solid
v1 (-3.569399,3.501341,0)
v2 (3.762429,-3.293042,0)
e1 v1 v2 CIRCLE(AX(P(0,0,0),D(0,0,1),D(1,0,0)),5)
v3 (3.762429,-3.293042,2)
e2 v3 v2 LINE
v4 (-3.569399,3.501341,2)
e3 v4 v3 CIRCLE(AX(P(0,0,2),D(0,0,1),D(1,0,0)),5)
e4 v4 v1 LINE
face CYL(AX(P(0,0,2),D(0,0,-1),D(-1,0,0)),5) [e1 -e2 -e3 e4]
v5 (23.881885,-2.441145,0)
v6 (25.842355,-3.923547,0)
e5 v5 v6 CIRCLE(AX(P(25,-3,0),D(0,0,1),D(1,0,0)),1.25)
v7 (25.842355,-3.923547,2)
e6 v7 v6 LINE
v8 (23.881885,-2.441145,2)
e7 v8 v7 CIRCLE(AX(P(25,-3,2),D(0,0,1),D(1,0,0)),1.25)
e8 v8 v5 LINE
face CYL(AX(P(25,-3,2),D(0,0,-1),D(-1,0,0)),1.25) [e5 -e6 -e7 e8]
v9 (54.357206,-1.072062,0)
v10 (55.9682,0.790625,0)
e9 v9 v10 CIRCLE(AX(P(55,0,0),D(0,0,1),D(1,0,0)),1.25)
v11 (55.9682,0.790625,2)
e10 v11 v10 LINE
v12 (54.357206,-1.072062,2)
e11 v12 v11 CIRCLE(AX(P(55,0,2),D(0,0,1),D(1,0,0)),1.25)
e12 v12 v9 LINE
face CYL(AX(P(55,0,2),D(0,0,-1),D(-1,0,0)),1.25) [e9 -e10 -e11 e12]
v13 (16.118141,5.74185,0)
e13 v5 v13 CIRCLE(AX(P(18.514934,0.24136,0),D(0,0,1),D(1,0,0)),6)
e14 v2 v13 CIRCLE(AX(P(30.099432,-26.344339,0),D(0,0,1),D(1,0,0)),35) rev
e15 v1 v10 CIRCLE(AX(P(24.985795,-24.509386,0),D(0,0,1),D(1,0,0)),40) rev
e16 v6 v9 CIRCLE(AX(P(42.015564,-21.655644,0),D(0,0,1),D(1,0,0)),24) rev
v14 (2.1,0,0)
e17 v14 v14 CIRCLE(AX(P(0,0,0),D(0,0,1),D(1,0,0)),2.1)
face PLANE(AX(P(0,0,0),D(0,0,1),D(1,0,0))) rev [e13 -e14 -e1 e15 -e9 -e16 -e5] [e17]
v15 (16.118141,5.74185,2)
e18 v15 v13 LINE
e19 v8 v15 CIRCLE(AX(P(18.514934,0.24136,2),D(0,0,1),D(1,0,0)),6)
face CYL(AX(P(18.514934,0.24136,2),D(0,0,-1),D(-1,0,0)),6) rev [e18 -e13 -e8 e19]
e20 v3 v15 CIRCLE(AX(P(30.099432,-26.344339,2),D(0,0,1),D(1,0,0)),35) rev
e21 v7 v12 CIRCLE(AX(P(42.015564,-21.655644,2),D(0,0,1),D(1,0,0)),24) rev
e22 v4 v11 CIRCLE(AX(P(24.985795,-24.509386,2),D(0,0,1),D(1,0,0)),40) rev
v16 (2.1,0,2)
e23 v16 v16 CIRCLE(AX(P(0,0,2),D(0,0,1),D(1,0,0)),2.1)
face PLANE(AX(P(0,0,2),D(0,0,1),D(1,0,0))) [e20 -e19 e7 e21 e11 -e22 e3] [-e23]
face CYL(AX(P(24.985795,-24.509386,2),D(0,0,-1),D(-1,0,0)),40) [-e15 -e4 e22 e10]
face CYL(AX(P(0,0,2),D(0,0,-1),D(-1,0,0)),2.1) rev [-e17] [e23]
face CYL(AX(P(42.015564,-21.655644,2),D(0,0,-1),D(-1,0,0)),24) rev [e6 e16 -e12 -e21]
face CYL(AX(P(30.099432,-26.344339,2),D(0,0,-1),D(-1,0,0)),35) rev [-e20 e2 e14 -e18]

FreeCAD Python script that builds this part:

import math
import FreeCAD as App
import Part
import Sketcher

V = App.Vector
Q = App.Units.Quantity

doc = App.newDocument("Part")
body = doc.addObject("PartDesign::Body", "Body")

# Sketch on XY plane
sketch1 = body.newObject("Sketcher::SketchObject", "Sketch")
sketch1.AttachmentSupport = (doc.getObject("XY_Plane"), [""])
sketch1.MapMode = "FlatFace"
sketch1.addGeometry(Part.ArcOfCircle(Part.Circle(V(25, -3, 0), V(0, 0, 1), 1.2), math.radians(153), math.radians(312)), False)
sketch1.addGeometry(Part.ArcOfCircle(Part.Circle(V(42, -21.7, 0), V(0, 0, 1), 24), math.radians(59), math.radians(132)), False)
sketch1.addGeometry(Part.ArcOfCircle(Part.Circle(V(55, 0, 0), V(0, 0, 1), 1.2), math.radians(-121), math.radians(39)), False)
sketch1.addGeometry(Part.ArcOfCircle(Part.Circle(V(25, -24.5, 0), V(0, 0, 1), 40), math.radians(39), math.radians(136)), False)
sketch1.addGeometry(Part.ArcOfCircle(Part.Circle(V(0, 0, 0), V(0, 0, 1), 5), math.radians(136), math.radians(319)), False)
sketch1.addGeometry(Part.ArcOfCircle(Part.Circle(V(30.1, -26.3, 0), V(0, 0, 1), 35), math.radians(114), math.radians(139)), False)
sketch1.addGeometry(Part.ArcOfCircle(Part.Circle(V(18.5, 0.2, 0), V(0, 0, 1), 6), math.radians(-27), math.radians(114)), False)
sketch1.addGeometry(Part.Circle(V(0, 0, 0), V(0, 0, 1), 2.1), False)
sketch1.addConstraint(Sketcher.Constraint("Tangent", 0, 2, 1, 2))
sketch1.addConstraint(Sketcher.Constraint("Tangent", 1, 1, 2, 1))
sketch1.addConstraint(Sketcher.Constraint("Tangent", 2, 2, 3, 1))
sketch1.addConstraint(Sketcher.Constraint("Tangent", 3, 2, 4, 1))
sketch1.addConstraint(Sketcher.Constraint("Tangent", 4, 2, 5, 2))
sketch1.addConstraint(Sketcher.Constraint("Tangent", 5, 1, 6, 2))
sketch1.addConstraint(Sketcher.Constraint("Tangent", 6, 1, 0, 1))
sketch1.addConstraint(Sketcher.Constraint("Coincident", 4, 3, -1, 1))
sketch1.addConstraint(Sketcher.Constraint("Coincident", 7, 3, -1, 1))
sketch1.addConstraint(Sketcher.Constraint("Equal", 0, 2))
sketch1.addConstraint(Sketcher.Constraint("PointOnObject", 2, 3, -1))
sketch1.addConstraint(Sketcher.Constraint("Radius", 1, Q("24 mm")))
sketch1.addConstraint(Sketcher.Constraint("Radius", 3, Q("40 mm")))
sketch1.addConstraint(Sketcher.Constraint("Radius", 4, Q("5 mm")))
sketch1.addConstraint(Sketcher.Constraint("Radius", 5, Q("35 mm")))
sketch1.addConstraint(Sketcher.Constraint("Radius", 6, Q("6 mm")))
sketch1.addConstraint(Sketcher.Constraint("Diameter", 7, Q("4.2 mm")))
sketch1.addConstraint(Sketcher.Constraint("Radius", 0, Q("1.25 mm")))
sketch1.addConstraint(Sketcher.Constraint("DistanceX", -1, 1, 0, 3, Q("25 mm")))
sketch1.addConstraint(Sketcher.Constraint("DistanceY", 0, 3, -1, 1, Q("3 mm")))
sketch1.addConstraint(Sketcher.Constraint("DistanceX", -1, 1, 2, 3, Q("55 mm")))
sketch1.addConstraint(Sketcher.Constraint("DistanceX", 6, 3, 5, 3, Q("11.584498 mm")))
pad1 = body.newObject("PartDesign::Pad", "Pad")
pad1.Profile = sketch1
pad1.Length = 2

doc.recompute()
